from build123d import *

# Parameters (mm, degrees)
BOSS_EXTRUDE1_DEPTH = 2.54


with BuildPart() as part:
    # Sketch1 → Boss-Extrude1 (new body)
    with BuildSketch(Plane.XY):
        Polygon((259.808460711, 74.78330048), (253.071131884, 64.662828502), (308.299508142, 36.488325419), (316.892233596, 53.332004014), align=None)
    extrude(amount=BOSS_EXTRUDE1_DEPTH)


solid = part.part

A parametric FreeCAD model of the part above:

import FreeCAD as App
import Part
import Sketcher

V = App.Vector
Q = App.Units.Quantity


def add_polygon(sketch, points):
    """Adds a closed chain of lines whose ends are joined by coincident constraints."""
    first, n = sketch.GeometryCount, len(points)
    for a, b in zip(points, points[1:] + points[:1]):
        sketch.addGeometry(Part.LineSegment(App.Vector(*a, 0), App.Vector(*b, 0)), False)
    for i in range(n):
        sketch.addConstraint(Sketcher.Constraint("Coincident", first + i, 2, first + (i + 1) % n, 1))

doc = App.newDocument("Part")
params = doc.addObject("Spreadsheet::Sheet", "Params")
for row, (alias, value) in enumerate([
    ("pad1_length", "0.1 in"),
], start=1):
    params.set(f"A{row}", alias)
    params.set(f"B{row}", "=" + value)
    params.setAlias(f"B{row}", alias)

body = doc.addObject("PartDesign::Body", "Body")

sketch1 = body.newObject("Sketcher::SketchObject", "Sketch")
sketch1.AttachmentSupport = (doc.getObject("XY_Plane"), [""])
sketch1.MapMode = "FlatFace"
add_polygon(sketch1, [(260, 75), (253, 65), (308, 36), (317, 53)])
sketch1.addConstraint(Sketcher.Constraint("Perpendicular", 1, 2))
sketch1.addConstraint(Sketcher.Constraint("DistanceY", -1, 1, 3, 2, Q("74.7833 mm")))
sketch1.addConstraint(Sketcher.Constraint("DistanceX", 0, 2, 2, 2, Q("63.821102 mm")))
sketch1.addConstraint(Sketcher.Constraint("Distance", 0, Q("12.157942 mm")))
sketch1.addConstraint(Sketcher.Constraint("Distance", 3, Q("60.98127 mm")))
sketch1.addConstraint(Sketcher.Constraint("DistanceX", -1, 1, 0, 2, Q("253.071132 mm")))
sketch1.addConstraint(Sketcher.Constraint("DistanceY", -1, 1, 0, 2, Q("64.662829 mm")))
sketch1.addConstraint(Sketcher.Constraint("DistanceX", -1, 1, 1, 2, Q("308.299508 mm")))
pad1 = body.newObject("PartDesign::Pad", "Pad")
pad1.Profile = sketch1
pad1.setExpression("Length", "Params.pad1_length")

doc.recompute()
